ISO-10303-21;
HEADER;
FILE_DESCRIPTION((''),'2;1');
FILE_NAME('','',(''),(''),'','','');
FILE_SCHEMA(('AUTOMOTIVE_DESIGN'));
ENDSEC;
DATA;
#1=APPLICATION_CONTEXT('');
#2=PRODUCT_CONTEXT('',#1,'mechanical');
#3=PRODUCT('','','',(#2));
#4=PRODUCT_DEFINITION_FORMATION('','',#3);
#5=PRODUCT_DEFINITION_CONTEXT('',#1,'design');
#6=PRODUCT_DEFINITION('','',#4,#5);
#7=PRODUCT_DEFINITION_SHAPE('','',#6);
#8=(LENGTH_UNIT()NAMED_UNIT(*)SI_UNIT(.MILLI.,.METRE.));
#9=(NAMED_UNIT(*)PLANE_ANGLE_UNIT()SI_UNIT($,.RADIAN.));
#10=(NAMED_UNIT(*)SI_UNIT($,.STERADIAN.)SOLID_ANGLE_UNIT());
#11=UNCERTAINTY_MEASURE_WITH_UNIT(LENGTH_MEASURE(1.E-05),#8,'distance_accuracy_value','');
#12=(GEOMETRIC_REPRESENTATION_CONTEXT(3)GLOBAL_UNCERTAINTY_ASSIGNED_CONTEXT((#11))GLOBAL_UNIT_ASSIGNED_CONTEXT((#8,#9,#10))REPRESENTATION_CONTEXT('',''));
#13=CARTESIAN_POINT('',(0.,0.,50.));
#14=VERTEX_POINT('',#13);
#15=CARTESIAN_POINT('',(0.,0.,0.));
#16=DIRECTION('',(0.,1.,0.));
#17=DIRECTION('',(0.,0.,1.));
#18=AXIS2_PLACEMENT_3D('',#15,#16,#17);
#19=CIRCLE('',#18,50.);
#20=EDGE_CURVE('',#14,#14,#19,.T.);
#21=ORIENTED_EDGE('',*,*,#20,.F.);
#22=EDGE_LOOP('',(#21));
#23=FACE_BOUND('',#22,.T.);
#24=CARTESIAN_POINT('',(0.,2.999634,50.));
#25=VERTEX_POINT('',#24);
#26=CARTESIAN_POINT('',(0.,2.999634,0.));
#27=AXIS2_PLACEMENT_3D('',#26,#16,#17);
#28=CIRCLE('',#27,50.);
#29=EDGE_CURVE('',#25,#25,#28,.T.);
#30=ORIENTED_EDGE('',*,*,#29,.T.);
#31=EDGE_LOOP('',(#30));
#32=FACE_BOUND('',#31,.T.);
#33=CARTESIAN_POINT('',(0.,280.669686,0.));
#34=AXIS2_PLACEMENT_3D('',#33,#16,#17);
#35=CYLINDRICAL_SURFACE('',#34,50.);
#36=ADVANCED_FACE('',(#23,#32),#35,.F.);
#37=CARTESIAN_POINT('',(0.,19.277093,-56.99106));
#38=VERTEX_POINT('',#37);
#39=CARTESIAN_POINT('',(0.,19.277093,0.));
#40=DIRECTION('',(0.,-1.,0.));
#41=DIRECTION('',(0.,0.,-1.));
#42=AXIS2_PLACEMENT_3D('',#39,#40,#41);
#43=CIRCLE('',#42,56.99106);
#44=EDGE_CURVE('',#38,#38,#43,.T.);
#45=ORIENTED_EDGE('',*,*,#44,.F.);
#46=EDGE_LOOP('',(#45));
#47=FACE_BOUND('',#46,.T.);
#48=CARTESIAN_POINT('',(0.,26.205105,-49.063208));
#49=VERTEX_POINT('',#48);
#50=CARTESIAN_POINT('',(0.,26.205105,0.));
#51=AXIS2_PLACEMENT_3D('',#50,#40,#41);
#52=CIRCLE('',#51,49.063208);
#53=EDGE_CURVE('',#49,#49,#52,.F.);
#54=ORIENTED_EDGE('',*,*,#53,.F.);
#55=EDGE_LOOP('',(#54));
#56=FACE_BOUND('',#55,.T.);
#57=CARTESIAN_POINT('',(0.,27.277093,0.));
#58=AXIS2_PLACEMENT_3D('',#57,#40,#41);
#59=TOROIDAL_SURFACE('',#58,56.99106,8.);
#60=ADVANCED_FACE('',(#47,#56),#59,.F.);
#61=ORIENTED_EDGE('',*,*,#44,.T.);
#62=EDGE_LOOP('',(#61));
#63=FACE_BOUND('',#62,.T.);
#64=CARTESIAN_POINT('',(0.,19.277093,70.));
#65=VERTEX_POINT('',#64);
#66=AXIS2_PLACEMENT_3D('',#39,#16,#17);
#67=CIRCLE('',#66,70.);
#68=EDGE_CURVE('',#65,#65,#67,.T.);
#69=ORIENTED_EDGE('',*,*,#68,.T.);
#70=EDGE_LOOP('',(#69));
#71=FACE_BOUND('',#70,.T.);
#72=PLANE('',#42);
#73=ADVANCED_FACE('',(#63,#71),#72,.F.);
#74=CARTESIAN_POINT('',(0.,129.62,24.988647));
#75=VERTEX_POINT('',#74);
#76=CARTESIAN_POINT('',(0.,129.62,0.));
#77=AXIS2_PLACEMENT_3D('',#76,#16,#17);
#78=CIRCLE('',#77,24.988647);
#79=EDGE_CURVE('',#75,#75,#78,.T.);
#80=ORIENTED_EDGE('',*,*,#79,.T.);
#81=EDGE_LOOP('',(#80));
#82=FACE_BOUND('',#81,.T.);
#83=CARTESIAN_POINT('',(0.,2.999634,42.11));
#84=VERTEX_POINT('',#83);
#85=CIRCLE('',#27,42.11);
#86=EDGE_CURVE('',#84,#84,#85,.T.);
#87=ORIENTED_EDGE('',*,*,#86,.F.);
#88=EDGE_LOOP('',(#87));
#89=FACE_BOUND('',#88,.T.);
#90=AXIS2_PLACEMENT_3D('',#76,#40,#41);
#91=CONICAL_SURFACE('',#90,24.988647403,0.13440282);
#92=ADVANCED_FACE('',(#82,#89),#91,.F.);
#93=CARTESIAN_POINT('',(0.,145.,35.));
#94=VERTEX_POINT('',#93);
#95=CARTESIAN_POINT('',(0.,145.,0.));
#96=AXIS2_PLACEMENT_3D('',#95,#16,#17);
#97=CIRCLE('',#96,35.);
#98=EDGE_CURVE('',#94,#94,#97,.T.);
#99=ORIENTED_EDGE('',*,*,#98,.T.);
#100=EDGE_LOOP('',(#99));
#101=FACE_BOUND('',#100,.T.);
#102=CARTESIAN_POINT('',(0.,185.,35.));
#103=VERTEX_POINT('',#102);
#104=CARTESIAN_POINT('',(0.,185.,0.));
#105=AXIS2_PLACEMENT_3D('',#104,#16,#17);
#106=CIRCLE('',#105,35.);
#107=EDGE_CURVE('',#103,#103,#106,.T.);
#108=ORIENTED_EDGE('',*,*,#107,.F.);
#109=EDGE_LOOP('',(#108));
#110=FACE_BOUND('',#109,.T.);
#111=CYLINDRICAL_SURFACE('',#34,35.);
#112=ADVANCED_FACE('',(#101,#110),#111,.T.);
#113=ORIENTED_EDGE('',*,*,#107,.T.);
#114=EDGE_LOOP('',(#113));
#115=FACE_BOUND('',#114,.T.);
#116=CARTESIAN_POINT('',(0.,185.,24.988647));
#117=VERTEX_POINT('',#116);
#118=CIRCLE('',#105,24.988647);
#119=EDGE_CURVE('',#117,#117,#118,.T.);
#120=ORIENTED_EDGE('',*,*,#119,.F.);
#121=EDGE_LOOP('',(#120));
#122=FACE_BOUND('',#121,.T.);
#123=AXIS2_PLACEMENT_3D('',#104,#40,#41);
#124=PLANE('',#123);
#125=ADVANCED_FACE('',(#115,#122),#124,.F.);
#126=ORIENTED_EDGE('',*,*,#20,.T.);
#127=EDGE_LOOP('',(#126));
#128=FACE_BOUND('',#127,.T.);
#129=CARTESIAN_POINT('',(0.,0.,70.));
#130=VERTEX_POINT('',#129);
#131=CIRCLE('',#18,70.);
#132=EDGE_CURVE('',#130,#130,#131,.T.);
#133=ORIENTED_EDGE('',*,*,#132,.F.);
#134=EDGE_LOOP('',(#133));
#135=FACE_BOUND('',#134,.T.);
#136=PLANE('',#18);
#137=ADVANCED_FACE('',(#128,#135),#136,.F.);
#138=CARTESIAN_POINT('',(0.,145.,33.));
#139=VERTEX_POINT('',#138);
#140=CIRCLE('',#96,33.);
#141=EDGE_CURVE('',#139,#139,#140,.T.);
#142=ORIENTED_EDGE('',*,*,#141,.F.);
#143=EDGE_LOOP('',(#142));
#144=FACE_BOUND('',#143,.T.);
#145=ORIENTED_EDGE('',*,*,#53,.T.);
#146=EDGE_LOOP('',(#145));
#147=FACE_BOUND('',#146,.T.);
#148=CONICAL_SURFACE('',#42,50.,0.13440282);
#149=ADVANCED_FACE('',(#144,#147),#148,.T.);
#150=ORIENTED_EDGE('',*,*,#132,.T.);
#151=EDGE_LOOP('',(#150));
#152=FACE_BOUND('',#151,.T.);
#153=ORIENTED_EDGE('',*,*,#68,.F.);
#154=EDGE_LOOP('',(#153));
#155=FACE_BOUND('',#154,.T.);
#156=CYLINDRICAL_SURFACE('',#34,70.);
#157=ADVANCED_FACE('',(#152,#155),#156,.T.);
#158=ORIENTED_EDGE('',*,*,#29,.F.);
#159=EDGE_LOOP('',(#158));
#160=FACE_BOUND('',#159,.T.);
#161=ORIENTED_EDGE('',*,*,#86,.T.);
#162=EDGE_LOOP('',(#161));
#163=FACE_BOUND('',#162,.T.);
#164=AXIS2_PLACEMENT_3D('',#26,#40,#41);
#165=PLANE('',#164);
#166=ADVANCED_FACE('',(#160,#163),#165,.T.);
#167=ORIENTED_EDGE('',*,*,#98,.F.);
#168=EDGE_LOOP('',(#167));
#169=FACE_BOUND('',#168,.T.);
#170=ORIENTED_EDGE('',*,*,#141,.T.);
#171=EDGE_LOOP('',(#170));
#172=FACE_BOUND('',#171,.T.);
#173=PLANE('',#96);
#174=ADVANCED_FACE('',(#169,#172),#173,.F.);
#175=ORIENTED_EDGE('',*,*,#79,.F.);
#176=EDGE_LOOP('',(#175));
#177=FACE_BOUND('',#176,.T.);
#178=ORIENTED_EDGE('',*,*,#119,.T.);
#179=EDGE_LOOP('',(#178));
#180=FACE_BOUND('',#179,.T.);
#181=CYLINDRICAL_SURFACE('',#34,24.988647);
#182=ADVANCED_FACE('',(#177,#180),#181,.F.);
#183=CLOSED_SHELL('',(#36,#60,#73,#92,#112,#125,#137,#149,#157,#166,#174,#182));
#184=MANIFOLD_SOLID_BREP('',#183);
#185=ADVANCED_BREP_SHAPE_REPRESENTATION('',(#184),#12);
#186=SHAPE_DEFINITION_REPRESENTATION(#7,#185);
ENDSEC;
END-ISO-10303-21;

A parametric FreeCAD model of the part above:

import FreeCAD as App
import Part
import Sketcher
from FreeCAD import Vector


def edges_at(feature, points):
    """Names of the edges that pass closest to the given points."""
    edges = feature.Shape.Edges
    near = lambda p: min(range(len(edges)), key=lambda i: edges[i].distToShape(Part.Vertex(*p))[0])
    return sorted({f"Edge{near(p) + 1}" for p in points})

doc = App.newDocument("Part")
params = doc.addObject("Spreadsheet::Sheet", "Params")
for row, (alias, value) in enumerate([
    ("sketch1_width", "20 mm"),
    ("sketch1_width2", "2 mm"),
    ("sketch1_height", "40 mm"),
    ("sketch1_width3", "7.89 mm"),
    ("sketch1_height2", "55.38 mm"),
    ("revolution_angle", "360 deg"),
    ("fillet_radius", "8 mm"),
], start=1):
    params.set(f"A{row}", alias)
    params.set(f"B{row}", "=" + value)
    params.setAlias(f"B{row}", alias)

body = doc.addObject("PartDesign::Body", "Body")

# Sketch on XY plane
sketch1 = body.newObject("Sketcher::SketchObject", "Sketch")
sketch1.AttachmentSupport = (doc.getObject("XY_Plane"), [""])
sketch1.MapMode = "FlatFace"
sketch1.addGeometry([
    Part.LineSegment(Vector(50, 3, 0), Vector(50, 0, 0)),  # 0
    Part.LineSegment(Vector(50, 0, 0), Vector(70, 0, 0)),  # 1
    Part.LineSegment(Vector(70, 0, 0), Vector(70, 19.3, 0)),  # 2
    Part.LineSegment(Vector(70, 19.3, 0), Vector(50, 19.3, 0)),  # 3
    Part.LineSegment(Vector(50, 19.3, 0), Vector(33, 145, 0)),  # 4
    Part.LineSegment(Vector(33, 145, 0), Vector(35, 145, 0)),  # 5
    Part.LineSegment(Vector(35, 145, 0), Vector(35, 185, 0)),  # 6
    Part.LineSegment(Vector(35, 185, 0), Vector(25, 185, 0)),  # 7
    Part.LineSegment(Vector(25, 185, 0), Vector(25, 129.6, 0)),  # 8
    Part.LineSegment(Vector(25, 129.6, 0), Vector(42.1, 3, 0)),  # 9
    Part.LineSegment(Vector(42.1, 3, 0), Vector(50, 3, 0)),  # 10
], False)
sketch1.addConstraint([
    Sketcher.Constraint("Coincident", 0, 2, 1, 1),
    Sketcher.Constraint("Coincident", 1, 2, 2, 1),
    Sketcher.Constraint("Coincident", 2, 2, 3, 1),
    Sketcher.Constraint("Coincident", 3, 2, 4, 1),
    Sketcher.Constraint("Coincident", 4, 2, 5, 1),
    Sketcher.Constraint("Coincident", 5, 2, 6, 1),
    Sketcher.Constraint("Coincident", 6, 2, 7, 1),
    Sketcher.Constraint("Coincident", 7, 2, 8, 1),
    Sketcher.Constraint("Coincident", 8, 2, 9, 1),
    Sketcher.Constraint("Coincident", 9, 2, 10, 1),
    Sketcher.Constraint("Coincident", 10, 2, 0, 1),
    Sketcher.Constraint("Vertical", 0),
    Sketcher.Constraint("Horizontal", 1),
    Sketcher.Constraint("Vertical", 2),
    Sketcher.Constraint("Horizontal", 3),
    Sketcher.Constraint("Horizontal", 5),
    Sketcher.Constraint("Vertical", 6),
    Sketcher.Constraint("Horizontal", 7),
    Sketcher.Constraint("Vertical", 8),
    Sketcher.Constraint("Horizontal", 10),
    Sketcher.Constraint("PointOnObject", 0, 2, -1),
    Sketcher.Constraint("Parallel", 4, 9),
    Sketcher.Constraint("Vertical", 0, 2, 3, 2),
    Sketcher.Constraint("DistanceX", 1, 1, 1, 2, 20.0),
    Sketcher.Constraint("DistanceX", 5, 1, 5, 2, 2.0),
    Sketcher.Constraint("DistanceY", 6, 1, 6, 2, 40.0),
    Sketcher.Constraint("DistanceX", -1, 1, 0, 2, 50.0),
    Sketcher.Constraint("DistanceX", -1, 1, 4, 2, 33.0),
    Sketcher.Constraint("DistanceY", -1, 1, 4, 2, 145.0),
    Sketcher.Constraint("DistanceX", 10, 1, 10, 2, 7.89),
    Sketcher.Constraint("DistanceY", 8, 2, 8, 1, 55.38),
    Sketcher.Constraint("Distance", 9, 127.77268),
    Sketcher.Constraint("DistanceX", 7, 2, 7, 1, 10.011353),
])
sketch1.setExpression("Constraints[23]", "Params.sketch1_width")
sketch1.setExpression("Constraints[24]", "Params.sketch1_width2")
sketch1.setExpression("Constraints[25]", "Params.sketch1_height")
sketch1.setExpression("Constraints[29]", "Params.sketch1_width3")
sketch1.setExpression("Constraints[30]", "Params.sketch1_height2")
revolution = body.newObject("PartDesign::Revolution", "Revolution")
revolution.Profile = sketch1
revolution.ReferenceAxis = (sketch1, ["V_Axis"])
revolution.setExpression("Angle", "Params.revolution_angle")
doc.recompute()

fillet = body.newObject("PartDesign::Fillet", "Fillet")
fillet.Base = (revolution, edges_at(revolution, [(0, 19.277, -50)]))
fillet.setExpression("Radius", "Params.fillet_radius")

doc.recompute()
